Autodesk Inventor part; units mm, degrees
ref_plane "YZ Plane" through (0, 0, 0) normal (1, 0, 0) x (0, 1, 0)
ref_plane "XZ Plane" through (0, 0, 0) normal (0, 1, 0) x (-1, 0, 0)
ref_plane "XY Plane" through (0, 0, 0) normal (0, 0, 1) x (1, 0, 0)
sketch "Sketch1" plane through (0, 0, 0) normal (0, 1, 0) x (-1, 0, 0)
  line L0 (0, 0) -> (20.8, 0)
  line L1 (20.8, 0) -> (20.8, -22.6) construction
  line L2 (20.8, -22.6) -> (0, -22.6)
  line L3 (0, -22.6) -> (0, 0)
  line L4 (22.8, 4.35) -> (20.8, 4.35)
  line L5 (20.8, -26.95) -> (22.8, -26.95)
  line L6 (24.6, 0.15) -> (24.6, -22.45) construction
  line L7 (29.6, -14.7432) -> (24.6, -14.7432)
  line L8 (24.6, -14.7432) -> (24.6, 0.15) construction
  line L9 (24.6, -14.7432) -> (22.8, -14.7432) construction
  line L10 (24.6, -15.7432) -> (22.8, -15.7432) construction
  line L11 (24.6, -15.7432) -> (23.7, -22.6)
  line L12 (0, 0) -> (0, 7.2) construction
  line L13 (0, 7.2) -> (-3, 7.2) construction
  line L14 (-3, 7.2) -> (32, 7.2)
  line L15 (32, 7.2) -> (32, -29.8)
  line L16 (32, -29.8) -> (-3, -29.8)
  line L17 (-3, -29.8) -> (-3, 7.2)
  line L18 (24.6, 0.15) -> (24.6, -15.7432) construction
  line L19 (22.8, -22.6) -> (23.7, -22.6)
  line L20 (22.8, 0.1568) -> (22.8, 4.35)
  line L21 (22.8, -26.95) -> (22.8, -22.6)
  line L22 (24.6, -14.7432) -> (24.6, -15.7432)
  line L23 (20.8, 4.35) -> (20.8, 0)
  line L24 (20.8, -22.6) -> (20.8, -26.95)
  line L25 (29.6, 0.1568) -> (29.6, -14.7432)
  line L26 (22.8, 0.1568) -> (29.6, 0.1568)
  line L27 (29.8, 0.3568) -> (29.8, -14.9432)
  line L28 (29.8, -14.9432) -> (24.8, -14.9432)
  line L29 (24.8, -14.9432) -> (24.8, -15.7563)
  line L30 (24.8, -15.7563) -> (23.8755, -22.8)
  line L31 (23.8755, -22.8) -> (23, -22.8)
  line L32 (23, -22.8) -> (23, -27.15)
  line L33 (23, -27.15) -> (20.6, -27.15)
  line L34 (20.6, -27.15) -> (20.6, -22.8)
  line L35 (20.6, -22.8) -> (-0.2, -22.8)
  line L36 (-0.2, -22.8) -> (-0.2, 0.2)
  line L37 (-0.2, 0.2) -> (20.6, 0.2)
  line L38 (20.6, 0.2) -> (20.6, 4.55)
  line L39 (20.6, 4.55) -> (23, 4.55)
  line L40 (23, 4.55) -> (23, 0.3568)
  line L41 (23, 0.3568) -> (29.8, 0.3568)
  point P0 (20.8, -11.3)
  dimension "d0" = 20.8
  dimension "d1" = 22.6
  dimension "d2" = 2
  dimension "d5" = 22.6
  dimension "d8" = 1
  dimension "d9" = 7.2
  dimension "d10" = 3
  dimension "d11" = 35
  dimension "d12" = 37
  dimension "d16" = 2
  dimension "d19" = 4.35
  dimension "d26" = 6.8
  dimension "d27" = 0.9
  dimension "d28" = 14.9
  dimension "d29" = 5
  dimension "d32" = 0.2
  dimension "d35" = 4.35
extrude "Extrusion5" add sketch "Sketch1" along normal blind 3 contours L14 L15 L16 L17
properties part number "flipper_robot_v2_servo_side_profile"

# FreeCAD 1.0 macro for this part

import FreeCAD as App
import Part
import Sketcher

doc = App.newDocument("Part")
body = doc.addObject("PartDesign::Body", "Body")

# Sketch on XZ plane
sketch1 = body.newObject("Sketcher::SketchObject", "Sketch")
sketch1.AttachmentSupport = (doc.getObject("XZ_Plane"), [""])
sketch1.MapMode = "FlatFace"
sketch1.addGeometry([
    Part.LineSegment(App.Vector(-32, 7.2, 0), App.Vector(3, 7.2, 0)),  # 0
    Part.LineSegment(App.Vector(3, 7.2, 0), App.Vector(3, -29.8, 0)),  # 1
    Part.LineSegment(App.Vector(3, -29.8, 0), App.Vector(-32, -29.8, 0)),  # 2
    Part.LineSegment(App.Vector(-32, -29.8, 0), App.Vector(-32, 7.2, 0)),  # 3
    Part.LineSegment(App.Vector(-23, 0.4, 0), App.Vector(-29.8, 0.4, 0)),  # 4
    Part.LineSegment(App.Vector(-29.8, 0.4, 0), App.Vector(-29.8, -14.9, 0)),  # 5
    Part.LineSegment(App.Vector(-29.8, -14.9, 0), App.Vector(-24.8, -14.9, 0)),  # 6
    Part.LineSegment(App.Vector(-24.8, -14.9, 0), App.Vector(-24.8, -15.8, 0)),  # 7
    Part.LineSegment(App.Vector(-24.8, -15.8, 0), App.Vector(-23.9, -22.8, 0)),  # 8
    Part.LineSegment(App.Vector(-23.9, -22.8, 0), App.Vector(-23, -22.8, 0)),  # 9
    Part.LineSegment(App.Vector(-23, -22.8, 0), App.Vector(-23, -27.1, 0)),  # 10
    Part.LineSegment(App.Vector(-23, -27.1, 0), App.Vector(-20.6, -27.1, 0)),  # 11
    Part.LineSegment(App.Vector(-20.6, -27.1, 0), App.Vector(-20.6, -22.8, 0)),  # 12
    Part.LineSegment(App.Vector(-20.6, -22.8, 0), App.Vector(0.2, -22.8, 0)),  # 13
    Part.LineSegment(App.Vector(0.2, -22.8, 0), App.Vector(0.2, 0.2, 0)),  # 14
    Part.LineSegment(App.Vector(0.2, 0.2, 0), App.Vector(-20.6, 0.2, 0)),  # 15
    Part.LineSegment(App.Vector(-20.6, 0.2, 0), App.Vector(-20.6, 4.5, 0)),  # 16
    Part.LineSegment(App.Vector(-20.6, 4.5, 0), App.Vector(-23, 4.5, 0)),  # 17
    Part.LineSegment(App.Vector(-23, 4.5, 0), App.Vector(-23, 0.4, 0)),  # 18
], False)
sketch1.addConstraint([
    Sketcher.Constraint("Coincident", 0, 2, 1, 1),
    Sketcher.Constraint("Coincident", 1, 2, 2, 1),
    Sketcher.Constraint("Coincident", 2, 2, 3, 1),
    Sketcher.Constraint("Coincident", 3, 2, 0, 1),
    Sketcher.Constraint("Coincident", 4, 2, 5, 1),
    Sketcher.Constraint("Coincident", 5, 2, 6, 1),
    Sketcher.Constraint("Coincident", 6, 2, 7, 1),
    Sketcher.Constraint("Coincident", 7, 2, 8, 1),
    Sketcher.Constraint("Coincident", 8, 2, 9, 1),
    Sketcher.Constraint("Coincident", 9, 2, 10, 1),
    Sketcher.Constraint("Coincident", 10, 2, 11, 1),
    Sketcher.Constraint("Coincident", 11, 2, 12, 1),
    Sketcher.Constraint("Coincident", 12, 2, 13, 1),
    Sketcher.Constraint("Coincident", 13, 2, 14, 1),
    Sketcher.Constraint("Coincident", 14, 2, 15, 1),
    Sketcher.Constraint("Coincident", 15, 2, 16, 1),
    Sketcher.Constraint("Coincident", 16, 2, 17, 1),
    Sketcher.Constraint("Coincident", 17, 2, 18, 1),
    Sketcher.Constraint("Coincident", 18, 2, 4, 1),
    Sketcher.Constraint("Horizontal", 0),
    Sketcher.Constraint("Vertical", 1),
    Sketcher.Constraint("Horizontal", 2),
    Sketcher.Constraint("Vertical", 3),
    Sketcher.Constraint("Horizontal", 4),
    Sketcher.Constraint("Vertical", 5),
    Sketcher.Constraint("Horizontal", 6),
    Sketcher.Constraint("Vertical", 7),
    Sketcher.Constraint("Horizontal", 9),
    Sketcher.Constraint("Vertical", 10),
    Sketcher.Constraint("Horizontal", 11),
    Sketcher.Constraint("Vertical", 12),
    Sketcher.Constraint("Horizontal", 13),
    Sketcher.Constraint("Vertical", 14),
    Sketcher.Constraint("Horizontal", 15),
    Sketcher.Constraint("Vertical", 16),
    Sketcher.Constraint("Horizontal", 17),
    Sketcher.Constraint("Vertical", 18),
    Sketcher.Constraint("Horizontal", 9, 2, 12, 2),
    Sketcher.Constraint("Vertical", 12, 2, 15, 2),
    Sketcher.Constraint("Vertical", 10, 2, 17, 2),
    Sketcher.Constraint("Equal", 12, 16),
    Sketcher.Constraint("DistanceX", 0, 1, 0, 2, 35.0),
    Sketcher.Constraint("DistanceX", 6, 1, 6, 2, 5.0),
    Sketcher.Constraint("DistanceY", 1, 2, 1, 1, 37.0),
    Sketcher.Constraint("DistanceX", 4, 2, 4, 1, 6.8),
    Sketcher.Constraint("DistanceX", 13, 1, 13, 2, 20.8),
    Sketcher.Constraint("DistanceX", -1, 1, 0, 2, 3.0),
    Sketcher.Constraint("DistanceY", 10, 2, 10, 1, 4.35),
    Sketcher.Constraint("DistanceY", -1, 1, 0, 2, 7.2),
    Sketcher.Constraint("DistanceX", -1, 1, 13, 2, 0.2),
    Sketcher.Constraint("DistanceY", -1, 1, 14, 2, 0.2),
    Sketcher.Constraint("DistanceX", 2, 2, 6, 2, 7.2),
    Sketcher.Constraint("DistanceY", 14, 1, 14, 2, 23.0),
    Sketcher.Constraint("DistanceY", 5, 2, 5, 1, 15.3),
    Sketcher.Constraint("DistanceY", 7, 2, 7, 1, 0.813),
    Sketcher.Constraint("Distance", 8, 7.104),
    Sketcher.Constraint("DistanceX", 9, 1, 9, 2, 0.8755),
])
pad1 = body.newObject("PartDesign::Pad", "Pad")
pad1.Profile = sketch1
pad1.Length = 3
pad1.Reversed = True

doc.recompute()
